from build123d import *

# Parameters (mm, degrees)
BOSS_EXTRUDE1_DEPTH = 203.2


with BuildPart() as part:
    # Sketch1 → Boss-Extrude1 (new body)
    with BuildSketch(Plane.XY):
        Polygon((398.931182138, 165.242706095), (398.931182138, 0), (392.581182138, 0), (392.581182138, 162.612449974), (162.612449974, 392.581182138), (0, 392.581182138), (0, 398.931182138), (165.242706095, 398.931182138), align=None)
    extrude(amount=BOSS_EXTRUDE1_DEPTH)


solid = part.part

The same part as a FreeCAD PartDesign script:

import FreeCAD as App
import Part
import Sketcher
Q = App.Units.Quantity

doc = App.newDocument("Part")
body = doc.addObject("PartDesign::Body", "Body")

# Sketch on XY plane
sketch1 = body.newObject("Sketcher::SketchObject", "Sketch")
sketch1.AttachmentSupport = (doc.getObject("XY_Plane"), [""])
sketch1.MapMode = "FlatFace"
sketch1.addGeometry([
    Part.LineSegment(App.Vector(398.931182, 0, 0), App.Vector(398.931182, 165.242706, 0)),  # 0
    Part.LineSegment(App.Vector(398.931182, 165.242706, 0), App.Vector(165.242706, 398.931182, 0)),  # 1
    Part.LineSegment(App.Vector(165.242706, 398.931182, 0), App.Vector(0, 398.931182, 0)),  # 2
    Part.LineSegment(App.Vector(0, 398.931182, 0), App.Vector(0, 392.581182, 0)),  # 3
    Part.LineSegment(App.Vector(0, 392.581182, 0), App.Vector(162.61245, 392.581182, 0)),  # 4
    Part.LineSegment(App.Vector(162.61245, 392.581182, 0), App.Vector(392.581182, 162.61245, 0)),  # 5
    Part.LineSegment(App.Vector(392.581182, 162.61245, 0), App.Vector(392.581182, 0, 0)),  # 6
    Part.LineSegment(App.Vector(392.581182, 0, 0), App.Vector(398.931182, 0, 0)),  # 7
], False)
sketch1.addConstraint([
    Sketcher.Constraint("Coincident", 0, 2, 1, 1),
    Sketcher.Constraint("Coincident", 1, 2, 2, 1),
    Sketcher.Constraint("Coincident", 2, 2, 3, 1),
    Sketcher.Constraint("Coincident", 3, 2, 4, 1),
    Sketcher.Constraint("Coincident", 4, 2, 5, 1),
    Sketcher.Constraint("Coincident", 5, 2, 6, 1),
    Sketcher.Constraint("Coincident", 6, 2, 7, 1),
    Sketcher.Constraint("Coincident", 7, 2, 0, 1),
    Sketcher.Constraint("Vertical", 0),
    Sketcher.Constraint("Horizontal", 2),
    Sketcher.Constraint("Vertical", 3),
    Sketcher.Constraint("Horizontal", 4),
    Sketcher.Constraint("Vertical", 6),
    Sketcher.Constraint("Horizontal", 7),
    Sketcher.Constraint("PointOnObject", 2, 2, -2),
    Sketcher.Constraint("PointOnObject", 6, 2, -1),
    Sketcher.Constraint("Parallel", 1, 5),
    Sketcher.Constraint("Equal", 2, 0),
    Sketcher.Constraint("Equal", 7, 3),
    Sketcher.Constraint("Equal", 4, 6),
    Sketcher.Constraint("DistanceX", 7, 1, 7, 2, Q("0.25 in")),
    Sketcher.Constraint("Distance", 5, Q("325.2249 mm")),
    Sketcher.Constraint("DistanceX", 4, 1, 4, 2, Q("162.61245 mm")),
    Sketcher.Constraint("DistanceX", 2, 2, 2, 1, Q("165.242706 mm")),
])
pad1 = body.newObject("PartDesign::Pad", "Pad")
pad1.Profile = sketch1
pad1.Length = Q("8 in")

doc.recompute()
